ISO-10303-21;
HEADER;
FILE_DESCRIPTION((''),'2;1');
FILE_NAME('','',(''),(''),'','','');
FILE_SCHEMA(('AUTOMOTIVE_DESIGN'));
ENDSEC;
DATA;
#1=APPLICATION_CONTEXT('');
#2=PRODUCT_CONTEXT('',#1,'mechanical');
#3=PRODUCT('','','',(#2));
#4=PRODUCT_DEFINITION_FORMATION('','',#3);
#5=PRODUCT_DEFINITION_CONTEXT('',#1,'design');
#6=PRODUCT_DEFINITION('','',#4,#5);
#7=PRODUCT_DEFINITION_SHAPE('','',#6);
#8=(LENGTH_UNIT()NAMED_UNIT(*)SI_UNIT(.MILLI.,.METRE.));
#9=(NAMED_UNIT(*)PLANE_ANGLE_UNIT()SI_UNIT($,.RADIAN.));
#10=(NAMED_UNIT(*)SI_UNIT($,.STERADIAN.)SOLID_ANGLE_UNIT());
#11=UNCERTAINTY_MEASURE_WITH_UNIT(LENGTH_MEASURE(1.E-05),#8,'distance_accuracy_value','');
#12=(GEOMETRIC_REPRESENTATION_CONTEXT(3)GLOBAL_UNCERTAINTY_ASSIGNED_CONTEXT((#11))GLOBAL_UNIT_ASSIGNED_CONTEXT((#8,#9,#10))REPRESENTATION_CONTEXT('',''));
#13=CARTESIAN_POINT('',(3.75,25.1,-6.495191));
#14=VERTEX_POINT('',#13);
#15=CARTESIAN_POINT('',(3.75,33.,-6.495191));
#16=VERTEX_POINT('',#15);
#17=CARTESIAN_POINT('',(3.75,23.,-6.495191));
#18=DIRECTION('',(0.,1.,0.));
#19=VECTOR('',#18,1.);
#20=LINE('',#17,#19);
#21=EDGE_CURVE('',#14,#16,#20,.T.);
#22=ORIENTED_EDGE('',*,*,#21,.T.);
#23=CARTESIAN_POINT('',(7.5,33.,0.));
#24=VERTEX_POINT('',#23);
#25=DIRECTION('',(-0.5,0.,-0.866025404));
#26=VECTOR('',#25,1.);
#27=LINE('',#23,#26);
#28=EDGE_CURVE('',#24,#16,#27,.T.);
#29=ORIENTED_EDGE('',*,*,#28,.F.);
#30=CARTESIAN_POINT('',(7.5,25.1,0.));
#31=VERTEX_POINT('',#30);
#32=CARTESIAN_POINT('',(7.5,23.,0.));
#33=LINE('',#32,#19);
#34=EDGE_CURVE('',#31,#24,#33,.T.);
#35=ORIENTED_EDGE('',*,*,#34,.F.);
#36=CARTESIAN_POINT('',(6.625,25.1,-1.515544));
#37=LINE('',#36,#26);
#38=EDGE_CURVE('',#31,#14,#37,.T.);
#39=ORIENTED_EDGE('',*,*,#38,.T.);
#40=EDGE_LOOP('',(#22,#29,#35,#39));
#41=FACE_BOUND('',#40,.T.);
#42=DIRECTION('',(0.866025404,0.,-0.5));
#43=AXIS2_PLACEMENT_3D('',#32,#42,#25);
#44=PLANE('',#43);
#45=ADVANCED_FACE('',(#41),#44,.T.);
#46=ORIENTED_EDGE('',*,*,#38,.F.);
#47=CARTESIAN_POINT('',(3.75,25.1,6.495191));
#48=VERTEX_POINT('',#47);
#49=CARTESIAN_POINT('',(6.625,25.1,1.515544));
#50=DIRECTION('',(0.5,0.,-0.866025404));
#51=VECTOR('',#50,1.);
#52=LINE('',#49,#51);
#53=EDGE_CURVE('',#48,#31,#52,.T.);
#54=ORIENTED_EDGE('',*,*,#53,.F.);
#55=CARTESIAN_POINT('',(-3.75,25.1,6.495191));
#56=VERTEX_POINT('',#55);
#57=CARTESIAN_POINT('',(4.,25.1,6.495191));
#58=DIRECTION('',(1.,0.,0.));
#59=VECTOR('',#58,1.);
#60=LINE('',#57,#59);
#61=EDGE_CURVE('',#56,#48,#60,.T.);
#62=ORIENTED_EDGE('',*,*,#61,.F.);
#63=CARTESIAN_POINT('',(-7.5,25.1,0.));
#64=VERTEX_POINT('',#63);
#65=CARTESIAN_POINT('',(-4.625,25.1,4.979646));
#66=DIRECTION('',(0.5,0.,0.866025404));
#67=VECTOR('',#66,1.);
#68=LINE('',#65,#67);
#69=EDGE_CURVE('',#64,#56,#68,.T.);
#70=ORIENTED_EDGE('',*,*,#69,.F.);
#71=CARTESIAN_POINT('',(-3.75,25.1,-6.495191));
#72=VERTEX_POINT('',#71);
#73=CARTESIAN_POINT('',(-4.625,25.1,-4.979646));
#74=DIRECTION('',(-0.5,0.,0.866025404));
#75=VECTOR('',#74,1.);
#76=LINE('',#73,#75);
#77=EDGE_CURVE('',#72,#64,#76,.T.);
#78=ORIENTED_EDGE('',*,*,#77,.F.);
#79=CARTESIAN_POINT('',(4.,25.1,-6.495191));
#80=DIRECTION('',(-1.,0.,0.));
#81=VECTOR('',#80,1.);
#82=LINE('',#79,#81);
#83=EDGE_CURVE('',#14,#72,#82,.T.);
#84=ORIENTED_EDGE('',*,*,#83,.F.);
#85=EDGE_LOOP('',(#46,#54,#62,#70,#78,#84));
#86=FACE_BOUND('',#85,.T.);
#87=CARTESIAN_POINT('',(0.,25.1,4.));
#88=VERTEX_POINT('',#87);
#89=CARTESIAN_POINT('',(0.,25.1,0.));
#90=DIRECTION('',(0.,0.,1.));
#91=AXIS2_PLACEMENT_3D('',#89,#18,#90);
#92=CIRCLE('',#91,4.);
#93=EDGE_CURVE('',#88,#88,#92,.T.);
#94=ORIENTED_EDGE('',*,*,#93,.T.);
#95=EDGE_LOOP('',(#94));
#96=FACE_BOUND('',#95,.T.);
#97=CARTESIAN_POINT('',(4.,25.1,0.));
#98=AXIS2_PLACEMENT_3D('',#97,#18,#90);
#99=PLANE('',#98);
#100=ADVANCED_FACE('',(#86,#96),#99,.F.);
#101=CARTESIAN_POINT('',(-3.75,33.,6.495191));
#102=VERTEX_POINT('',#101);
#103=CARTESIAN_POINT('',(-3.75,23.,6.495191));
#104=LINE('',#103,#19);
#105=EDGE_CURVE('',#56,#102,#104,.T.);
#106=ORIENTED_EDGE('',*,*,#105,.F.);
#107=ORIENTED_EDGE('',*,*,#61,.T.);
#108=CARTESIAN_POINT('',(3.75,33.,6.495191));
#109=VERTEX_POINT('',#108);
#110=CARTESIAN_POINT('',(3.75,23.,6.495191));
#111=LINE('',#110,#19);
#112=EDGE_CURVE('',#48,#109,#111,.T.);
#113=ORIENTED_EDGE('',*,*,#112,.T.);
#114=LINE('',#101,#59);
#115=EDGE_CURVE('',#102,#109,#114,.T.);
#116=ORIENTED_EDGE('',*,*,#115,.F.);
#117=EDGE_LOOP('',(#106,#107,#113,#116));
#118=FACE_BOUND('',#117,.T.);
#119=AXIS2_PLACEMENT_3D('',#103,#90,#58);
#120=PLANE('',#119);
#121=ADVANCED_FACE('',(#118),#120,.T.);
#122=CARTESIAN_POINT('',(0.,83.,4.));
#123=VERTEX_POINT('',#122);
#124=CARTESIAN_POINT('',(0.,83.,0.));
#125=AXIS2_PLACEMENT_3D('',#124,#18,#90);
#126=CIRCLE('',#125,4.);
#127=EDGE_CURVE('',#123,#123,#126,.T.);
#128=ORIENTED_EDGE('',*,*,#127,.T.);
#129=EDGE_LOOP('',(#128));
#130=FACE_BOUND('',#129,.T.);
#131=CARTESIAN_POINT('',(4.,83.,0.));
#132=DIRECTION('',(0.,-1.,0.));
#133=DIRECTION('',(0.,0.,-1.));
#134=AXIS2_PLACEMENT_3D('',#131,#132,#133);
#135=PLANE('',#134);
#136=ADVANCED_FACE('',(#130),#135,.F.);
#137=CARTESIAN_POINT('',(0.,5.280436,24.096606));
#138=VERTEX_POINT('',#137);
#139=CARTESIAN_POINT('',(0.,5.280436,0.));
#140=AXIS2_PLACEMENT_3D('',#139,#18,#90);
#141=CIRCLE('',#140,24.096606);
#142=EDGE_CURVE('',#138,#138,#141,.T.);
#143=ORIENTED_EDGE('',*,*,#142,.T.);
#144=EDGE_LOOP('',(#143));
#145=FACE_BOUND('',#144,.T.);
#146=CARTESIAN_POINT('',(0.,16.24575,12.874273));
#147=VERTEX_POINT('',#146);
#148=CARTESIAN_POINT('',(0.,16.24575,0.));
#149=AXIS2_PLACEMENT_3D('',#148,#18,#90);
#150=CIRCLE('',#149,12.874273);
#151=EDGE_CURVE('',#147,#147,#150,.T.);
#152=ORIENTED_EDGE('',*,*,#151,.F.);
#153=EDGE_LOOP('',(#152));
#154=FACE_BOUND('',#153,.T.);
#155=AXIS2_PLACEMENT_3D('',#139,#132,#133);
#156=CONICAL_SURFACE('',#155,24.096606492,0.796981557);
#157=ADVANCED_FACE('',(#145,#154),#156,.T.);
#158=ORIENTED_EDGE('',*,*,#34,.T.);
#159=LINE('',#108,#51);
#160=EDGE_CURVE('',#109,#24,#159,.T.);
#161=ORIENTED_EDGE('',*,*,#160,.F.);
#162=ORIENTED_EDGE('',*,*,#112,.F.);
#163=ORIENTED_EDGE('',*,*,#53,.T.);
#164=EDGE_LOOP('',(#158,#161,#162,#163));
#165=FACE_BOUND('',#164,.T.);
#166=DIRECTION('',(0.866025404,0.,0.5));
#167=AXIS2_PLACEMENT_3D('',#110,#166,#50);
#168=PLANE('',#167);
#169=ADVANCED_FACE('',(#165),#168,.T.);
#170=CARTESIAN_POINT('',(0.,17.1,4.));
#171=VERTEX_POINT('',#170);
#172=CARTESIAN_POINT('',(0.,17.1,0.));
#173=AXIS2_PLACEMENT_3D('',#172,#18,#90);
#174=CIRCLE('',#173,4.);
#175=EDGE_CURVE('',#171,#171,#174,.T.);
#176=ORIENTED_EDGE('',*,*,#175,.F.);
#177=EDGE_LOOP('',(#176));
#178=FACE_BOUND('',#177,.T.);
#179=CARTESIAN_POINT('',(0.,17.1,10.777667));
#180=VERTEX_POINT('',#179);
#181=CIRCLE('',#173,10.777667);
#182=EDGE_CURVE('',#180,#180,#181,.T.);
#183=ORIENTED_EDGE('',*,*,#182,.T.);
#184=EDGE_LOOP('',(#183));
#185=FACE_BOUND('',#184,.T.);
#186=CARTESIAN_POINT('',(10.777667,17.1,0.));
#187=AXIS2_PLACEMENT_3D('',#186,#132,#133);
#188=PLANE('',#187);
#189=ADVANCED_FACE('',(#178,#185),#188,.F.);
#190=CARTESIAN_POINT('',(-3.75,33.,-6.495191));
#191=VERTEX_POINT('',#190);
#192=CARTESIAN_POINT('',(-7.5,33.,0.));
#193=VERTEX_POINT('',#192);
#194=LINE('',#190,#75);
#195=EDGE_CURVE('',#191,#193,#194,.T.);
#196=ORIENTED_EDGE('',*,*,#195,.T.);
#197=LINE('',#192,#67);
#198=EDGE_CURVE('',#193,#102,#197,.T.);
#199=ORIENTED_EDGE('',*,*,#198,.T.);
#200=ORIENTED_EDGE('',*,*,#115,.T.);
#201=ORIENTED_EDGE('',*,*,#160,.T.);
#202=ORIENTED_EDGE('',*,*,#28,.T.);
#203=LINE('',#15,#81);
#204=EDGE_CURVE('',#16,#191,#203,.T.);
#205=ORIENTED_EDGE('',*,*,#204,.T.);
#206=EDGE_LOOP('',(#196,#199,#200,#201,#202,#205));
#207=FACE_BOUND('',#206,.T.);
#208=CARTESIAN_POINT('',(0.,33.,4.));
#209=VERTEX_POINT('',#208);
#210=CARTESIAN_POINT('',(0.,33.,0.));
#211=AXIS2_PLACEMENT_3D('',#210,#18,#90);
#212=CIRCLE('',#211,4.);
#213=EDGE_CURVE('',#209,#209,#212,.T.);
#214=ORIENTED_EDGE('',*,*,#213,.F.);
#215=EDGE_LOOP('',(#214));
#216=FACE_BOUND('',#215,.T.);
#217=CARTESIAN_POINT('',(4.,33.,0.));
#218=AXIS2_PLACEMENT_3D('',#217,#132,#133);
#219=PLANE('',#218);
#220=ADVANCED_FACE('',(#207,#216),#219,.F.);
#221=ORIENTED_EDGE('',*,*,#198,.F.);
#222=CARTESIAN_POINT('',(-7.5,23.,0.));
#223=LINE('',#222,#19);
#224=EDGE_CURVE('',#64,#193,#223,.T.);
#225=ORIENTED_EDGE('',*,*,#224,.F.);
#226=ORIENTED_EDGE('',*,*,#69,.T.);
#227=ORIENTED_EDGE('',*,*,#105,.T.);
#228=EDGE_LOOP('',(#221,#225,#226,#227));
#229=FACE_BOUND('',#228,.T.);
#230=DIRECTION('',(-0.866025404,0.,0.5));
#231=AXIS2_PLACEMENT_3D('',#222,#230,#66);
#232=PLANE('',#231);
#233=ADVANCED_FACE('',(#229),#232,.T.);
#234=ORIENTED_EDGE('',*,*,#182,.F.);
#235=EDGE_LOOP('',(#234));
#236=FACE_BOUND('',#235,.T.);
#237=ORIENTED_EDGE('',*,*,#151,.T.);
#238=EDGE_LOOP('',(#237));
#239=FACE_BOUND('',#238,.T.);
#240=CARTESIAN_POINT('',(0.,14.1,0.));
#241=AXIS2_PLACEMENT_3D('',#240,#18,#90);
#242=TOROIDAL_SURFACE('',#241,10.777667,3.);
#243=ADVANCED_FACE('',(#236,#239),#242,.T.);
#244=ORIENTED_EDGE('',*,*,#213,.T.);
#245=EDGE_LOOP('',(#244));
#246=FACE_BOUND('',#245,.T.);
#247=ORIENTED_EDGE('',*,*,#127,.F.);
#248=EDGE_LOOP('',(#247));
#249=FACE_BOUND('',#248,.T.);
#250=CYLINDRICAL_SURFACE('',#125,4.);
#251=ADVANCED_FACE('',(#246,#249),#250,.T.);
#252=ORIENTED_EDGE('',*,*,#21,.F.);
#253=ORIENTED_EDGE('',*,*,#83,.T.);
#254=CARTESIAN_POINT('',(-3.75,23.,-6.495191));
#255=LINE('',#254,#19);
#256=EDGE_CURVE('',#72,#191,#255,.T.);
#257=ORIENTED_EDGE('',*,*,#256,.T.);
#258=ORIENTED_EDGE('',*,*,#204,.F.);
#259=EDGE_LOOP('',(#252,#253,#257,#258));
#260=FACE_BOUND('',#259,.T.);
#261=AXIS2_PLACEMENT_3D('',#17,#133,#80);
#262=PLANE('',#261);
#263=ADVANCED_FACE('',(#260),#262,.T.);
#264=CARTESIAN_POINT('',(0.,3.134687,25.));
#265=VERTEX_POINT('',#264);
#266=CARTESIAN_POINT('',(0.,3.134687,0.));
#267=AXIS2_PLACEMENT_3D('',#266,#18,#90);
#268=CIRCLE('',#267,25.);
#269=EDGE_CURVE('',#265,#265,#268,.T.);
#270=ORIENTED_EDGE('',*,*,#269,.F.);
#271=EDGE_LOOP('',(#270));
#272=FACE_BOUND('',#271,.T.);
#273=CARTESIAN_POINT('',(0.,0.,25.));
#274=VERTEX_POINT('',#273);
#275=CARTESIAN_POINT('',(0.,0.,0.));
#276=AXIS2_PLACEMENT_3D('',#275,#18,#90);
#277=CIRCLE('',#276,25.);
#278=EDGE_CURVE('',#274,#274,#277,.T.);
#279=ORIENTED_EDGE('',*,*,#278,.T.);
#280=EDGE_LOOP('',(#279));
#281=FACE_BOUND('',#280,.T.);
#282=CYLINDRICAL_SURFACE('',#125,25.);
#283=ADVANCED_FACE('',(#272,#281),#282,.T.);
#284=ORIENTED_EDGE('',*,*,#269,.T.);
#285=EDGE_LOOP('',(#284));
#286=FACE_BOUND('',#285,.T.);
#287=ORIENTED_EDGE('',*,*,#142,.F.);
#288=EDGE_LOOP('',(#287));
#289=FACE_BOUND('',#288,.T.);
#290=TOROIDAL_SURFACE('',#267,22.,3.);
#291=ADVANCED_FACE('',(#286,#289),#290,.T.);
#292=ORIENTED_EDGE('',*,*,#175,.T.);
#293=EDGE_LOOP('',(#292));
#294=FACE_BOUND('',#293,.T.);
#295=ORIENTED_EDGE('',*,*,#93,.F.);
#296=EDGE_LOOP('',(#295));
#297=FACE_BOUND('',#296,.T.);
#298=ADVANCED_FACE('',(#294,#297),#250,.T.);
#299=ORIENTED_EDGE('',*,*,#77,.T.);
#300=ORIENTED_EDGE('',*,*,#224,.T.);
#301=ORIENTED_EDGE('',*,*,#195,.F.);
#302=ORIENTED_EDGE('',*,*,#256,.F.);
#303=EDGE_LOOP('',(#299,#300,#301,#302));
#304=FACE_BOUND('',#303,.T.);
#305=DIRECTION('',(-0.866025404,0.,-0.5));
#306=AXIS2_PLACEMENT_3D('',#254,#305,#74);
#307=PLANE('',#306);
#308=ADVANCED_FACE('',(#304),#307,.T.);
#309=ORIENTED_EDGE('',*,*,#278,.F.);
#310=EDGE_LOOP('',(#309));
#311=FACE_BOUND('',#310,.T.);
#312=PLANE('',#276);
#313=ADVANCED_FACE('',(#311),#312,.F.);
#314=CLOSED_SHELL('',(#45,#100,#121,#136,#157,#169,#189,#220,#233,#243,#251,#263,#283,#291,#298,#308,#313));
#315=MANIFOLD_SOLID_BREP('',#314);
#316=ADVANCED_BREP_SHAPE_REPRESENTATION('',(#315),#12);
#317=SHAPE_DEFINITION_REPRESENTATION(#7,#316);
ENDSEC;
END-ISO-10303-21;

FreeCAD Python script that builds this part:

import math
import FreeCAD as App
import Part
import Sketcher
Q = App.Units.Quantity

doc = App.newDocument("Part")
body = doc.addObject("PartDesign::Body", "Body")

sketch1 = body.newObject("Sketcher::SketchObject", "Sketch")
sketch1.AttachmentSupport = (doc.getObject("XY_Plane"), [""])
sketch1.MapMode = "FlatFace"
sketch1.addGeometry(Part.LineSegment(App.Vector(0, 0, 0), App.Vector(25, 0, 0)), False)
sketch1.addGeometry(Part.LineSegment(App.Vector(25, 0, 0), App.Vector(25, 3.134687, 0)), False)
sketch1.addGeometry(Part.ArcOfCircle(Part.Circle(App.Vector(22, 3.134687, 0), App.Vector(0, 0, 1), 3), math.radians(0), math.radians(45.66368)), False)
sketch1.addGeometry(Part.LineSegment(App.Vector(24.096606, 5.280436, 0), App.Vector(12.874273, 16.24575, 0)), False)
sketch1.addGeometry(Part.ArcOfCircle(Part.Circle(App.Vector(10.777667, 14.1, 0), App.Vector(0, 0, 1), 3), math.radians(45.66368), math.radians(90)), False)
sketch1.addGeometry(Part.LineSegment(App.Vector(10.777667, 17.1, 0), App.Vector(4, 17.1, 0)), False)
sketch1.addGeometry(Part.LineSegment(App.Vector(4, 17.1, 0), App.Vector(4, 25.1, 0)), False)
sketch1.addGeometry(Part.LineSegment(App.Vector(4, 25.1, 0), App.Vector(7.5, 25.1, 0)), False)
sketch1.addGeometry(Part.LineSegment(App.Vector(7.5, 25.1, 0), App.Vector(7.5, 33, 0)), False)
sketch1.addGeometry(Part.LineSegment(App.Vector(7.5, 33, 0), App.Vector(4, 33, 0)), False)
sketch1.addGeometry(Part.LineSegment(App.Vector(4, 33, 0), App.Vector(4, 83, 0)), False)
sketch1.addGeometry(Part.LineSegment(App.Vector(4, 83, 0), App.Vector(0, 83, 0)), False)
sketch1.addGeometry(Part.LineSegment(App.Vector(0, 83, 0), App.Vector(0, 0, 0)), False)
sketch1.addConstraint(Sketcher.Constraint("Coincident", 0, 2, 1, 1))
sketch1.addConstraint(Sketcher.Constraint("Tangent", 1, 2, 2, 1))
sketch1.addConstraint(Sketcher.Constraint("Tangent", 2, 2, 3, 1))
sketch1.addConstraint(Sketcher.Constraint("Tangent", 3, 2, 4, 1))
sketch1.addConstraint(Sketcher.Constraint("Tangent", 4, 2, 5, 1))
sketch1.addConstraint(Sketcher.Constraint("Coincident", 5, 2, 6, 1))
sketch1.addConstraint(Sketcher.Constraint("Coincident", 6, 2, 7, 1))
sketch1.addConstraint(Sketcher.Constraint("Coincident", 7, 2, 8, 1))
sketch1.addConstraint(Sketcher.Constraint("Coincident", 8, 2, 9, 1))
sketch1.addConstraint(Sketcher.Constraint("Coincident", 9, 2, 10, 1))
sketch1.addConstraint(Sketcher.Constraint("Coincident", 10, 2, 11, 1))
sketch1.addConstraint(Sketcher.Constraint("Coincident", 11, 2, 12, 1))
sketch1.addConstraint(Sketcher.Constraint("Coincident", 12, 2, 0, 1))
sketch1.addConstraint(Sketcher.Constraint("Horizontal", 0))
sketch1.addConstraint(Sketcher.Constraint("Vertical", 1))
sketch1.addConstraint(Sketcher.Constraint("Horizontal", 5))
sketch1.addConstraint(Sketcher.Constraint("Vertical", 6))
sketch1.addConstraint(Sketcher.Constraint("Horizontal", 7))
sketch1.addConstraint(Sketcher.Constraint("Vertical", 8))
sketch1.addConstraint(Sketcher.Constraint("Horizontal", 9))
sketch1.addConstraint(Sketcher.Constraint("Vertical", 10))
sketch1.addConstraint(Sketcher.Constraint("Horizontal", 11))
sketch1.addConstraint(Sketcher.Constraint("Vertical", 12))
sketch1.addConstraint(Sketcher.Constraint("Coincident", 12, 2, -1, 1))
sketch1.addConstraint(Sketcher.Constraint("Equal", 2, 4))
sketch1.addConstraint(Sketcher.Constraint("Vertical", 6, 2, 9, 2))
sketch1.addConstraint(Sketcher.Constraint("Radius", 2, 3.0))
sketch1.addConstraint(Sketcher.Constraint("DistanceX", 0, 1, 0, 2, 25.0))
sketch1.addConstraint(Sketcher.Constraint("DistanceX", 11, 2, 11, 1, 4.0))
sketch1.addConstraint(Sketcher.Constraint("DistanceY", 6, 1, 6, 2, 8.0))
sketch1.addConstraint(Sketcher.Constraint("DistanceY", 10, 1, 10, 2, 50.0))
sketch1.addConstraint(Sketcher.Constraint("DistanceY", 12, 2, 12, 1, 83.0))
sketch1.addConstraint(Sketcher.Constraint("DistanceX", 7, 1, 7, 2, 3.5))
sketch1.addConstraint(Sketcher.Constraint("DistanceY", 8, 1, 8, 2, 7.9))
sketch1.addConstraint(Sketcher.Constraint("DistanceX", 5, 2, 5, 1, 6.777667))
sketch1.addConstraint(Sketcher.Constraint("DistanceY", 1, 1, 1, 2, 3.134687))
revolution = body.newObject("PartDesign::Revolution", "Revolution")
revolution.Profile = sketch1
revolution.ReferenceAxis = (sketch1, ["V_Axis"])
revolution.Angle = 360

sketch2 = body.newObject("Sketcher::SketchObject", "Sketch001")
sketch2.AttachmentSupport = (doc.getObject("XZ_Plane"), [""])
sketch2.MapMode = "FlatFace"
sketch2.AttachmentOffset = App.Placement(App.Vector(0, 0, -33), App.Rotation())
sketch2.addGeometry(Part.Circle(App.Vector(0, 0, 0), App.Vector(0, 0, 1), 11.768422), False)
sketch2.addGeometry(Part.LineSegment(App.Vector(3.75, -6.495191, 0), App.Vector(7.5, 0, 0)), False)
sketch2.addGeometry(Part.LineSegment(App.Vector(7.5, 0, 0), App.Vector(3.75, 6.495191, 0)), False)
sketch2.addGeometry(Part.LineSegment(App.Vector(3.75, 6.495191, 0), App.Vector(-3.75, 6.495191, 0)), False)
sketch2.addGeometry(Part.LineSegment(App.Vector(-3.75, 6.495191, 0), App.Vector(-7.5, 0, 0)), False)
sketch2.addGeometry(Part.LineSegment(App.Vector(-7.5, 0, 0), App.Vector(-3.75, -6.495191, 0)), False)
sketch2.addGeometry(Part.LineSegment(App.Vector(-3.75, -6.495191, 0), App.Vector(3.75, -6.495191, 0)), False)
sketch2.addConstraint(Sketcher.Constraint("Coincident", 1, 2, 2, 1))
sketch2.addConstraint(Sketcher.Constraint("Coincident", 2, 2, 3, 1))
sketch2.addConstraint(Sketcher.Constraint("Coincident", 3, 2, 4, 1))
sketch2.addConstraint(Sketcher.Constraint("Coincident", 4, 2, 5, 1))
sketch2.addConstraint(Sketcher.Constraint("Coincident", 5, 2, 6, 1))
sketch2.addConstraint(Sketcher.Constraint("Coincident", 6, 2, 1, 1))
sketch2.addConstraint(Sketcher.Constraint("Horizontal", 3))
sketch2.addConstraint(Sketcher.Constraint("Horizontal", 6))
sketch2.addConstraint(Sketcher.Constraint("Coincident", 0, 3, -1, 1))
sketch2.addConstraint(Sketcher.Constraint("Symmetric", 1, 2, 4, 2, -1, 1))
sketch2.addConstraint(Sketcher.Constraint("Symmetric", 2, 2, 5, 2, -1, 1))
sketch2.addConstraint(Sketcher.Constraint("PointOnObject", 1, 2, -1))
sketch2.addConstraint(Sketcher.Constraint("Parallel", 1, 4))
sketch2.addConstraint(Sketcher.Constraint("Vertical", 3, 2, 5, 2))
sketch2.addConstraint(Sketcher.Constraint("Angle", 1, Q("60 deg")))
sketch2.addConstraint(Sketcher.Constraint("DistanceX", 3, 2, 3, 1, 7.5))
sketch2.addConstraint(Sketcher.Constraint("DistanceX", 4, 2, 1, 2, 15.0))
sketch2.addConstraint(Sketcher.Constraint("Diameter", 0, 23.536843))
pocket1 = body.newObject("PartDesign::Pocket", "Pocket")
pocket1.Profile = sketch2
pocket1.Length = 10
pocket1.Reversed = True

doc.recompute()
